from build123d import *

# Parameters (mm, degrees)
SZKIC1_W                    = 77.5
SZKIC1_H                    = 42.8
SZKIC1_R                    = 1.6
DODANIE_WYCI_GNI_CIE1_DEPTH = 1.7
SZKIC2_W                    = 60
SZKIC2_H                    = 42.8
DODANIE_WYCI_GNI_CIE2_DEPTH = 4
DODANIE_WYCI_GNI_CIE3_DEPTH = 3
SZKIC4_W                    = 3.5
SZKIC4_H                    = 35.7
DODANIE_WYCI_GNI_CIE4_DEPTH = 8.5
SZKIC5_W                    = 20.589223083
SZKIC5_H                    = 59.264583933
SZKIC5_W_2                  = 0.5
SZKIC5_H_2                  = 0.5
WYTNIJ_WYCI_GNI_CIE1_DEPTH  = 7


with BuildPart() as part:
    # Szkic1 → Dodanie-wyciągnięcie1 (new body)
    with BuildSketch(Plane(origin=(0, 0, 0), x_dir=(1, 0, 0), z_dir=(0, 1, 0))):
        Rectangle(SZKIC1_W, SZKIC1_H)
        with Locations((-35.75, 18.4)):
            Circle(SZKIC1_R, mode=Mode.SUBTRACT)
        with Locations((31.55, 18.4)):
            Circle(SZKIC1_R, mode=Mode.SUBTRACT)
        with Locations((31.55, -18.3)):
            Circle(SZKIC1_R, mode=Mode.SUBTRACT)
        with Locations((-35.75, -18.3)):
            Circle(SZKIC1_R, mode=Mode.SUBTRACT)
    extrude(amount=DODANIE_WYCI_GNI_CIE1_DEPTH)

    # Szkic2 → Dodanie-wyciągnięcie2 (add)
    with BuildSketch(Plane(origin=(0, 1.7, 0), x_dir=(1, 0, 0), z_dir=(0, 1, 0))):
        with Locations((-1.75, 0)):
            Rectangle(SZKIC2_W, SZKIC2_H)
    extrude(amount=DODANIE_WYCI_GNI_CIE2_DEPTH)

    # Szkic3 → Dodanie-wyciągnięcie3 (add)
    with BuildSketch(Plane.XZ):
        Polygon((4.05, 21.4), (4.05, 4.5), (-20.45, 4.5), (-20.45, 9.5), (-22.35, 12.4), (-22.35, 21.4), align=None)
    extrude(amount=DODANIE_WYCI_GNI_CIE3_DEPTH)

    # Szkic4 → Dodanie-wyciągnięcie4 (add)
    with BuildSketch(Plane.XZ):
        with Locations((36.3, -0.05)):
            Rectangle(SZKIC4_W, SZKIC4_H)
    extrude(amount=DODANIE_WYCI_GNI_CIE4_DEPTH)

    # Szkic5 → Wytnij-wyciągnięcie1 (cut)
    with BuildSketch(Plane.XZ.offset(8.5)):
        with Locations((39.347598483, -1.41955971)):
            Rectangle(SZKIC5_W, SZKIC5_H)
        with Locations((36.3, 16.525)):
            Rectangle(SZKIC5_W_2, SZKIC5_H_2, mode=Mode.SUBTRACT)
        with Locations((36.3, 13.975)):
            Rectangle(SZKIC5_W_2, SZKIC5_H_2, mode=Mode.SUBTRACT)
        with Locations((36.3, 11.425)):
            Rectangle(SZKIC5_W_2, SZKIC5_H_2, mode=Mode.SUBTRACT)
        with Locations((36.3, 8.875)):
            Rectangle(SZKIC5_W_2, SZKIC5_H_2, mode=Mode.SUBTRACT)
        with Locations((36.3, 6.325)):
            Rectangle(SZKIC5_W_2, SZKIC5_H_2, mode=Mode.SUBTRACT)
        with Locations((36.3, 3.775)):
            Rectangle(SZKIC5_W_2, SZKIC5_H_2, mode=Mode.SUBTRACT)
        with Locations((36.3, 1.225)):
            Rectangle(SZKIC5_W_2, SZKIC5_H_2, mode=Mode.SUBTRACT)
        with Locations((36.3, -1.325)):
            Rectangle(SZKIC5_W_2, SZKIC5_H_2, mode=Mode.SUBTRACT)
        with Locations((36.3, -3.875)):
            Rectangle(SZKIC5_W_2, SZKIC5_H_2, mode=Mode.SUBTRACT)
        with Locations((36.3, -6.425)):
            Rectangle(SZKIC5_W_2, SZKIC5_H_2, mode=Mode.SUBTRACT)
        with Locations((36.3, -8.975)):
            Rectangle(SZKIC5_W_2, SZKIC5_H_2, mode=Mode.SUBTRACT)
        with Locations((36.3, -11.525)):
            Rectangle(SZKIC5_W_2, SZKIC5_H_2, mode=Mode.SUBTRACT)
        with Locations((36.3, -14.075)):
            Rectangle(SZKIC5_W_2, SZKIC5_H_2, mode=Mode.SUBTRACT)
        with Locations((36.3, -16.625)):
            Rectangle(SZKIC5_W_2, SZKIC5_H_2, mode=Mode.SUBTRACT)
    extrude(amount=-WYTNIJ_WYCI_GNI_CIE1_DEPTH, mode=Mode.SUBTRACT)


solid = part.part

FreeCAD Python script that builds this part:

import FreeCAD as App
import Part
import Sketcher

doc = App.newDocument("Part")
params = doc.addObject("Spreadsheet::Sheet", "Params")
for row, (alias, value) in enumerate([
    ("sketch1_diameter", "3.2 mm"),
    ("sketch1_width", "77.5 mm"),
    ("sketch1_height", "42.8 mm"),
    ("pad1_length", "1.7 mm"),
    ("sketch2_width", "60 mm"),
    ("sketch2_height", "42.8 mm"),
    ("pad2_length", "4 mm"),
    ("sketch3_height", "9 mm"),
    ("sketch3_height2", "5 mm"),
    ("sketch3_width", "26.4 mm"),
    ("sketch3_width2", "24.5 mm"),
    ("sketch3_height3", "16.9 mm"),
    ("pad3_length", "3 mm"),
    ("sketch4_width", "3.5 mm"),
    ("sketch4_height", "35.7 mm"),
    ("pad4_length", "8.5 mm"),
    ("sketch5_width", "0.5 mm"),
    ("pocket1_length", "7 mm"),
], start=1):
    params.set(f"A{row}", alias)
    params.set(f"B{row}", "=" + value)
    params.setAlias(f"B{row}", alias)

body = doc.addObject("PartDesign::Body", "Body")

# Sketch on XZ plane
sketch1 = doc.addObject("Sketcher::SketchObject", "Sketch")
body.addObject(sketch1)
sketch1.AttachmentSupport = (doc.XZ_Plane, [""])
sketch1.MapMode = "FlatFace"
sketch1.addGeometry([
    Part.LineSegment(App.Vector(-38.8, -21.4, 0), App.Vector(-38.8, 21.4, 0)),  # 0
    Part.LineSegment(App.Vector(-38.8, 21.4, 0), App.Vector(38.8, 21.4, 0)),  # 1
    Part.LineSegment(App.Vector(38.8, 21.4, 0), App.Vector(38.8, -21.4, 0)),  # 2
    Part.LineSegment(App.Vector(38.8, -21.4, 0), App.Vector(-38.8, -21.4, 0)),  # 3
    Part.Circle(App.Vector(-35.8, 18.3, 0), App.Vector(0, 0, 1), 1.6),  # 4
    Part.Circle(App.Vector(31.6, 18.3, 0), App.Vector(0, 0, 1), 1.6),  # 5
    Part.Circle(App.Vector(-35.8, -18.4, 0), App.Vector(0, 0, 1), 1.6),  # 6
    Part.Circle(App.Vector(31.6, -18.4, 0), App.Vector(0, 0, 1), 1.6),  # 7
], False)
sketch1.addConstraint([
    Sketcher.Constraint("Coincident", 0, 2, 1, 1),
    Sketcher.Constraint("Coincident", 1, 2, 2, 1),
    Sketcher.Constraint("Coincident", 2, 2, 3, 1),
    Sketcher.Constraint("Coincident", 3, 2, 0, 1),
    Sketcher.Constraint("Vertical", 0),
    Sketcher.Constraint("Horizontal", 1),
    Sketcher.Constraint("Vertical", 2),
    Sketcher.Constraint("Horizontal", 3),
    Sketcher.Constraint("Equal", 4, 5),
    Sketcher.Constraint("Equal", 5, 6),
    Sketcher.Constraint("Equal", 6, 7),
    Sketcher.Constraint("Symmetric", 0, 2, 2, 2, -1, 1),
    Sketcher.Constraint("Horizontal", 4, 3, 5, 3),
    Sketcher.Constraint("Horizontal", 6, 3, 7, 3),
    Sketcher.Constraint("Vertical", 4, 3, 6, 3),
    Sketcher.Constraint("Vertical", 5, 3, 7, 3),
    Sketcher.Constraint("Diameter", 4, 3.2),
    Sketcher.Constraint("DistanceX", 1, 1, 1, 2, 77.5),
    Sketcher.Constraint("DistanceY", 0, 1, 0, 2, 42.8),
    Sketcher.Constraint("DistanceX", 0, 2, 4, 3, 3.0),
    Sketcher.Constraint("DistanceY", 2, 2, 7, 3, 3.0),
    Sketcher.Constraint("DistanceY", -1, 1, 4, 3, 18.3),
    Sketcher.Constraint("DistanceX", 4, 3, 5, 3, 67.3),
])
sketch1.setExpression("Constraints[16]", "Params.sketch1_diameter")
sketch1.setExpression("Constraints[17]", "Params.sketch1_width")
sketch1.setExpression("Constraints[18]", "Params.sketch1_height")
pad1 = doc.addObject("PartDesign::Pad", "Pad")
body.addObject(pad1)
pad1.Profile = sketch1
pad1.setExpression("Length", "Params.pad1_length")
pad1.Reversed = True

# Sketch on XZ plane
sketch2 = doc.addObject("Sketcher::SketchObject", "Sketch001")
body.addObject(sketch2)
sketch2.AttachmentSupport = (doc.XZ_Plane, [""])
sketch2.MapMode = "FlatFace"
sketch2.AttachmentOffset = App.Placement(App.Vector(0, 0, -1.7), App.Rotation())
sketch2.addGeometry([
    Part.LineSegment(App.Vector(-32, -21, 0), App.Vector(-32, 21, 0)),
    Part.LineSegment(App.Vector(-32, 21, 0), App.Vector(28, 21, 0)),
    Part.LineSegment(App.Vector(28, 21, 0), App.Vector(28, -21, 0)),
    Part.LineSegment(App.Vector(28, -21, 0), App.Vector(-32, -21, 0)),
], False)
sketch2.addConstraint([
    Sketcher.Constraint("Coincident", 0, 2, 1, 1),
    Sketcher.Constraint("Coincident", 1, 2, 2, 1),
    Sketcher.Constraint("Coincident", 2, 2, 3, 1),
    Sketcher.Constraint("Coincident", 3, 2, 0, 1),
    Sketcher.Constraint("Vertical", 0),
    Sketcher.Constraint("Horizontal", 1),
    Sketcher.Constraint("Vertical", 2),
    Sketcher.Constraint("Horizontal", 3),
    Sketcher.Constraint("DistanceX", 1, 1, 1, 2, 60.0),
    Sketcher.Constraint("DistanceY", 0, 1, 0, 2, 42.8),
    Sketcher.Constraint("DistanceY", -1, 1, 0, 2, 21.4),
    Sketcher.Constraint("DistanceX", 0, 2, -1, 1, 31.75),
])
sketch2.setExpression("Constraints[8]", "Params.sketch2_width")
sketch2.setExpression("Constraints[9]", "Params.sketch2_height")
pad2 = doc.addObject("PartDesign::Pad", "Pad001")
body.addObject(pad2)
pad2.Profile = sketch2
pad2.setExpression("Length", "Params.pad2_length")
pad2.Reversed = True

# Sketch on XZ plane
sketch3 = doc.addObject("Sketcher::SketchObject", "Sketch002")
body.addObject(sketch3)
sketch3.AttachmentSupport = (doc.XZ_Plane, [""])
sketch3.MapMode = "FlatFace"
sketch3.addGeometry([
    Part.LineSegment(App.Vector(4, 4.5, 0), App.Vector(4, 21.4, 0)),  # 0
    Part.LineSegment(App.Vector(4, 21.4, 0), App.Vector(-22.4, 21.4, 0)),  # 1
    Part.LineSegment(App.Vector(-22.4, 21.4, 0), App.Vector(-22.4, 12.4, 0)),  # 2
    Part.LineSegment(App.Vector(-22.4, 12.4, 0), App.Vector(-20.4, 9.5, 0)),  # 3
    Part.LineSegment(App.Vector(-20.4, 9.5, 0), App.Vector(-20.4, 4.5, 0)),  # 4
    Part.LineSegment(App.Vector(-20.4, 4.5, 0), App.Vector(4, 4.5, 0)),  # 5
], False)
sketch3.addConstraint([
    Sketcher.Constraint("Coincident", 0, 2, 1, 1),
    Sketcher.Constraint("Coincident", 1, 2, 2, 1),
    Sketcher.Constraint("Coincident", 2, 2, 3, 1),
    Sketcher.Constraint("Coincident", 3, 2, 4, 1),
    Sketcher.Constraint("Coincident", 4, 2, 5, 1),
    Sketcher.Constraint("Coincident", 5, 2, 0, 1),
    Sketcher.Constraint("Vertical", 0),
    Sketcher.Constraint("Horizontal", 1),
    Sketcher.Constraint("Vertical", 2),
    Sketcher.Constraint("Vertical", 4),
    Sketcher.Constraint("Horizontal", 5),
    Sketcher.Constraint("DistanceY", 2, 2, 2, 1, 9.0),
    Sketcher.Constraint("DistanceY", 4, 2, 4, 1, 5.0),
    Sketcher.Constraint("DistanceX", 1, 2, 1, 1, 26.4),
    Sketcher.Constraint("DistanceX", 5, 1, 5, 2, 24.5),
    Sketcher.Constraint("DistanceY", 0, 1, 0, 2, 16.9),
    Sketcher.Constraint("DistanceY", -1, 1, 0, 2, 21.4),
    Sketcher.Constraint("DistanceX", -1, 1, 0, 2, 4.05),
])
sketch3.setExpression("Constraints[11]", "Params.sketch3_height")
sketch3.setExpression("Constraints[12]", "Params.sketch3_height2")
sketch3.setExpression("Constraints[13]", "Params.sketch3_width")
sketch3.setExpression("Constraints[14]", "Params.sketch3_width2")
sketch3.setExpression("Constraints[15]", "Params.sketch3_height3")
pad3 = doc.addObject("PartDesign::Pad", "Pad002")
body.addObject(pad3)
pad3.Profile = sketch3
pad3.setExpression("Length", "Params.pad3_length")

# Sketch on XZ plane
sketch4 = doc.addObject("Sketcher::SketchObject", "Sketch003")
body.addObject(sketch4)
sketch4.AttachmentSupport = (doc.XZ_Plane, [""])
sketch4.MapMode = "FlatFace"
sketch4.addGeometry([
    Part.LineSegment(App.Vector(34.5, 17.8, 0), App.Vector(34.5, -17.9, 0)),
    Part.LineSegment(App.Vector(34.5, -17.9, 0), App.Vector(38, -17.9, 0)),
    Part.LineSegment(App.Vector(38, -17.9, 0), App.Vector(38, 17.8, 0)),
    Part.LineSegment(App.Vector(38, 17.8, 0), App.Vector(34.5, 17.8, 0)),
], False)
sketch4.addConstraint([
    Sketcher.Constraint("Coincident", 0, 2, 1, 1),
    Sketcher.Constraint("Coincident", 1, 2, 2, 1),
    Sketcher.Constraint("Coincident", 2, 2, 3, 1),
    Sketcher.Constraint("Coincident", 3, 2, 0, 1),
    Sketcher.Constraint("Vertical", 0),
    Sketcher.Constraint("Horizontal", 1),
    Sketcher.Constraint("Vertical", 2),
    Sketcher.Constraint("Horizontal", 3),
    Sketcher.Constraint("DistanceX", 1, 1, 1, 2, 3.5),
    Sketcher.Constraint("DistanceY", 0, 2, 0, 1, 35.7),
    Sketcher.Constraint("DistanceY", 0, 2, -1, 1, 17.9),
    Sketcher.Constraint("DistanceX", -1, 1, 0, 2, 34.55),
])
sketch4.setExpression("Constraints[8]", "Params.sketch4_width")
sketch4.setExpression("Constraints[9]", "Params.sketch4_height")
pad4 = doc.addObject("PartDesign::Pad", "Pad003")
body.addObject(pad4)
pad4.Profile = sketch4
pad4.setExpression("Length", "Params.pad4_length")

# Sketch on XZ plane
sketch5 = doc.addObject("Sketcher::SketchObject", "Sketch004")
body.addObject(sketch5)
sketch5.AttachmentSupport = (doc.XZ_Plane, [""])
sketch5.MapMode = "FlatFace"
sketch5.AttachmentOffset = App.Placement(App.Vector(0, 0, 8.5), App.Rotation())
sketch5.addGeometry([
    Part.LineSegment(App.Vector(29.1, 28.2, 0), App.Vector(29.1, -31.1, 0)),  # 0
    Part.LineSegment(App.Vector(29.1, -31.1, 0), App.Vector(49.6, -31.1, 0)),  # 1
    Part.LineSegment(App.Vector(49.6, -31.1, 0), App.Vector(49.6, 28.2, 0)),  # 2
    Part.LineSegment(App.Vector(49.6, 28.2, 0), App.Vector(29.1, 28.2, 0)),  # 3
    Part.LineSegment(App.Vector(36.5, -16.9, 0), App.Vector(36, -16.9, 0)),  # 4
    Part.LineSegment(App.Vector(36, -16.9, 0), App.Vector(36, -16.4, 0)),  # 5
    Part.LineSegment(App.Vector(36, -16.4, 0), App.Vector(36.5, -16.4, 0)),  # 6
    Part.LineSegment(App.Vector(36.5, -16.4, 0), App.Vector(36.5, -16.9, 0)),  # 7
    Part.LineSegment(App.Vector(36.5, -14.3, 0), App.Vector(36, -14.3, 0)),  # 8
    Part.LineSegment(App.Vector(36, -14.3, 0), App.Vector(36, -13.8, 0)),  # 9
    Part.LineSegment(App.Vector(36, -13.8, 0), App.Vector(36.5, -13.8, 0)),  # 10
    Part.LineSegment(App.Vector(36.5, -13.8, 0), App.Vector(36.5, -14.3, 0)),  # 11
    Part.LineSegment(App.Vector(36.5, -11.8, 0), App.Vector(36, -11.8, 0)),  # 12
    Part.LineSegment(App.Vector(36, -11.8, 0), App.Vector(36, -11.3, 0)),  # 13
    Part.LineSegment(App.Vector(36, -11.3, 0), App.Vector(36.5, -11.3, 0)),  # 14
    Part.LineSegment(App.Vector(36.5, -11.3, 0), App.Vector(36.5, -11.8, 0)),  # 15
    Part.LineSegment(App.Vector(36.5, -9.2, 0), App.Vector(36, -9.2, 0)),  # 16
    Part.LineSegment(App.Vector(36, -9.2, 0), App.Vector(36, -8.7, 0)),  # 17
    Part.LineSegment(App.Vector(36, -8.7, 0), App.Vector(36.5, -8.7, 0)),  # 18
    Part.LineSegment(App.Vector(36.5, -8.7, 0), App.Vector(36.5, -9.2, 0)),  # 19
    Part.LineSegment(App.Vector(36.5, -6.7, 0), App.Vector(36, -6.7, 0)),  # 20
    Part.LineSegment(App.Vector(36, -6.7, 0), App.Vector(36, -6.2, 0)),  # 21
    Part.LineSegment(App.Vector(36, -6.2, 0), App.Vector(36.5, -6.2, 0)),  # 22
    Part.LineSegment(App.Vector(36.5, -6.2, 0), App.Vector(36.5, -6.7, 0)),  # 23
    Part.LineSegment(App.Vector(36.5, -4.1, 0), App.Vector(36, -4.1, 0)),  # 24
    Part.LineSegment(App.Vector(36, -4.1, 0), App.Vector(36, -3.6, 0)),  # 25
    Part.LineSegment(App.Vector(36, -3.6, 0), App.Vector(36.5, -3.6, 0)),  # 26
    Part.LineSegment(App.Vector(36.5, -3.6, 0), App.Vector(36.5, -4.1, 0)),  # 27
    Part.LineSegment(App.Vector(36.5, -1.6, 0), App.Vector(36, -1.6, 0)),  # 28
    Part.LineSegment(App.Vector(36, -1.6, 0), App.Vector(36, -1.1, 0)),  # 29
    Part.LineSegment(App.Vector(36, -1.1, 0), App.Vector(36.5, -1.1, 0)),  # 30
    Part.LineSegment(App.Vector(36.5, -1.1, 0), App.Vector(36.5, -1.6, 0)),  # 31
    Part.LineSegment(App.Vector(36.5, 1, 0), App.Vector(36, 1, 0)),  # 32
    Part.LineSegment(App.Vector(36, 1, 0), App.Vector(36, 1.5, 0)),  # 33
    Part.LineSegment(App.Vector(36, 1.5, 0), App.Vector(36.5, 1.5, 0)),  # 34
    Part.LineSegment(App.Vector(36.5, 1.5, 0), App.Vector(36.5, 1, 0)),  # 35
    Part.LineSegment(App.Vector(36.5, 3.5, 0), App.Vector(36, 3.5, 0)),  # 36
    Part.LineSegment(App.Vector(36, 3.5, 0), App.Vector(36, 4, 0)),  # 37
    Part.LineSegment(App.Vector(36, 4, 0), App.Vector(36.5, 4, 0)),  # 38
    Part.LineSegment(App.Vector(36.5, 4, 0), App.Vector(36.5, 3.5, 0)),  # 39
    Part.LineSegment(App.Vector(36.5, 6.1, 0), App.Vector(36, 6.1, 0)),  # 40
    Part.LineSegment(App.Vector(36, 6.1, 0), App.Vector(36, 6.6, 0)),  # 41
    Part.LineSegment(App.Vector(36, 6.6, 0), App.Vector(36.5, 6.6, 0)),  # 42
    Part.LineSegment(App.Vector(36.5, 6.6, 0), App.Vector(36.5, 6.1, 0)),  # 43
    Part.LineSegment(App.Vector(36.5, 8.6, 0), App.Vector(36, 8.6, 0)),  # 44
    Part.LineSegment(App.Vector(36, 8.6, 0), App.Vector(36, 9.1, 0)),  # 45
    Part.LineSegment(App.Vector(36, 9.1, 0), App.Vector(36.5, 9.1, 0)),  # 46
    Part.LineSegment(App.Vector(36.5, 9.1, 0), App.Vector(36.5, 8.6, 0)),  # 47
    Part.LineSegment(App.Vector(36.5, 11.2, 0), App.Vector(36, 11.2, 0)),  # 48
    Part.LineSegment(App.Vector(36, 11.2, 0), App.Vector(36, 11.7, 0)),  # 49
    Part.LineSegment(App.Vector(36, 11.7, 0), App.Vector(36.5, 11.7, 0)),  # 50
    Part.LineSegment(App.Vector(36.5, 11.7, 0), App.Vector(36.5, 11.2, 0)),  # 51
    Part.LineSegment(App.Vector(36.5, 13.7, 0), App.Vector(36, 13.7, 0)),  # 52
    Part.LineSegment(App.Vector(36, 13.7, 0), App.Vector(36, 14.2, 0)),  # 53
    Part.LineSegment(App.Vector(36, 14.2, 0), App.Vector(36.5, 14.2, 0)),  # 54
    Part.LineSegment(App.Vector(36.5, 14.2, 0), App.Vector(36.5, 13.7, 0)),  # 55
    Part.LineSegment(App.Vector(36.5, 16.3, 0), App.Vector(36, 16.3, 0)),  # 56
    Part.LineSegment(App.Vector(36, 16.3, 0), App.Vector(36, 16.8, 0)),  # 57
    Part.LineSegment(App.Vector(36, 16.8, 0), App.Vector(36.5, 16.8, 0)),  # 58
    Part.LineSegment(App.Vector(36.5, 16.8, 0), App.Vector(36.5, 16.3, 0)),  # 59
], False)
sketch5.addConstraint([
    Sketcher.Constraint("Coincident", 0, 2, 1, 1),
    Sketcher.Constraint("Coincident", 1, 2, 2, 1),
    Sketcher.Constraint("Coincident", 2, 2, 3, 1),
    Sketcher.Constraint("Coincident", 3, 2, 0, 1),
    Sketcher.Constraint("Coincident", 4, 2, 5, 1),
    Sketcher.Constraint("Coincident", 5, 2, 6, 1),
    Sketcher.Constraint("Coincident", 6, 2, 7, 1),
    Sketcher.Constraint("Coincident", 7, 2, 4, 1),
    Sketcher.Constraint("Coincident", 8, 2, 9, 1),
    Sketcher.Constraint("Coincident", 9, 2, 10, 1),
    Sketcher.Constraint("Coincident", 10, 2, 11, 1),
    Sketcher.Constraint("Coincident", 11, 2, 8, 1),
    Sketcher.Constraint("Coincident", 12, 2, 13, 1),
    Sketcher.Constraint("Coincident", 13, 2, 14, 1),
    Sketcher.Constraint("Coincident", 14, 2, 15, 1),
    Sketcher.Constraint("Coincident", 15, 2, 12, 1),
    Sketcher.Constraint("Coincident", 16, 2, 17, 1),
    Sketcher.Constraint("Coincident", 17, 2, 18, 1),
    Sketcher.Constraint("Coincident", 18, 2, 19, 1),
    Sketcher.Constraint("Coincident", 19, 2, 16, 1),
    Sketcher.Constraint("Coincident", 20, 2, 21, 1),
    Sketcher.Constraint("Coincident", 21, 2, 22, 1),
    Sketcher.Constraint("Coincident", 22, 2, 23, 1),
    Sketcher.Constraint("Coincident", 23, 2, 20, 1),
    Sketcher.Constraint("Coincident", 24, 2, 25, 1),
    Sketcher.Constraint("Coincident", 25, 2, 26, 1),
    Sketcher.Constraint("Coincident", 26, 2, 27, 1),
    Sketcher.Constraint("Coincident", 27, 2, 24, 1),
    Sketcher.Constraint("Coincident", 28, 2, 29, 1),
    Sketcher.Constraint("Coincident", 29, 2, 30, 1),
    Sketcher.Constraint("Coincident", 30, 2, 31, 1),
    Sketcher.Constraint("Coincident", 31, 2, 28, 1),
    Sketcher.Constraint("Coincident", 32, 2, 33, 1),
    Sketcher.Constraint("Coincident", 33, 2, 34, 1),
    Sketcher.Constraint("Coincident", 34, 2, 35, 1),
    Sketcher.Constraint("Coincident", 35, 2, 32, 1),
    Sketcher.Constraint("Coincident", 36, 2, 37, 1),
    Sketcher.Constraint("Coincident", 37, 2, 38, 1),
    Sketcher.Constraint("Coincident", 38, 2, 39, 1),
    Sketcher.Constraint("Coincident", 39, 2, 36, 1),
    Sketcher.Constraint("Coincident", 40, 2, 41, 1),
    Sketcher.Constraint("Coincident", 41, 2, 42, 1),
    Sketcher.Constraint("Coincident", 42, 2, 43, 1),
    Sketcher.Constraint("Coincident", 43, 2, 40, 1),
    Sketcher.Constraint("Coincident", 44, 2, 45, 1),
    Sketcher.Constraint("Coincident", 45, 2, 46, 1),
    Sketcher.Constraint("Coincident", 46, 2, 47, 1),
    Sketcher.Constraint("Coincident", 47, 2, 44, 1),
    Sketcher.Constraint("Coincident", 48, 2, 49, 1),
    Sketcher.Constraint("Coincident", 49, 2, 50, 1),
    Sketcher.Constraint("Coincident", 50, 2, 51, 1),
    Sketcher.Constraint("Coincident", 51, 2, 48, 1),
    Sketcher.Constraint("Coincident", 52, 2, 53, 1),
    Sketcher.Constraint("Coincident", 53, 2, 54, 1),
    Sketcher.Constraint("Coincident", 54, 2, 55, 1),
    Sketcher.Constraint("Coincident", 55, 2, 52, 1),
    Sketcher.Constraint("Coincident", 56, 2, 57, 1),
    Sketcher.Constraint("Coincident", 57, 2, 58, 1),
    Sketcher.Constraint("Coincident", 58, 2, 59, 1),
    Sketcher.Constraint("Coincident", 59, 2, 56, 1),
    Sketcher.Constraint("Vertical", 0),
    Sketcher.Constraint("Horizontal", 1),
    Sketcher.Constraint("Vertical", 2),
    Sketcher.Constraint("Horizontal", 3),
    Sketcher.Constraint("Horizontal", 4),
    Sketcher.Constraint("Vertical", 5),
    Sketcher.Constraint("Horizontal", 6),
    Sketcher.Constraint("Vertical", 7),
    Sketcher.Constraint("Horizontal", 8),
    Sketcher.Constraint("Vertical", 9),
    Sketcher.Constraint("Horizontal", 10),
    Sketcher.Constraint("Vertical", 11),
    Sketcher.Constraint("Horizontal", 12),
    Sketcher.Constraint("Vertical", 13),
    Sketcher.Constraint("Horizontal", 14),
    Sketcher.Constraint("Vertical", 15),
    Sketcher.Constraint("Horizontal", 16),
    Sketcher.Constraint("Vertical", 17),
    Sketcher.Constraint("Horizontal", 18),
    Sketcher.Constraint("Vertical", 19),
    Sketcher.Constraint("Horizontal", 20),
    Sketcher.Constraint("Vertical", 21),
    Sketcher.Constraint("Horizontal", 22),
    Sketcher.Constraint("Vertical", 23),
    Sketcher.Constraint("Horizontal", 24),
    Sketcher.Constraint("Vertical", 25),
    Sketcher.Constraint("Horizontal", 26),
    Sketcher.Constraint("Vertical", 27),
    Sketcher.Constraint("Horizontal", 28),
    Sketcher.Constraint("Vertical", 29),
    Sketcher.Constraint("Horizontal", 30),
    Sketcher.Constraint("Vertical", 31),
    Sketcher.Constraint("Horizontal", 32),
    Sketcher.Constraint("Vertical", 33),
    Sketcher.Constraint("Horizontal", 34),
    Sketcher.Constraint("Vertical", 35),
    Sketcher.Constraint("Horizontal", 36),
    Sketcher.Constraint("Vertical", 37),
    Sketcher.Constraint("Horizontal", 38),
    Sketcher.Constraint("Vertical", 39),
    Sketcher.Constraint("Horizontal", 40),
    Sketcher.Constraint("Vertical", 41),
    Sketcher.Constraint("Horizontal", 42),
    Sketcher.Constraint("Vertical", 43),
    Sketcher.Constraint("Horizontal", 44),
    Sketcher.Constraint("Vertical", 45),
    Sketcher.Constraint("Horizontal", 46),
    Sketcher.Constraint("Vertical", 47),
    Sketcher.Constraint("Horizontal", 48),
    Sketcher.Constraint("Vertical", 49),
    Sketcher.Constraint("Horizontal", 50),
    Sketcher.Constraint("Vertical", 51),
    Sketcher.Constraint("Horizontal", 52),
    Sketcher.Constraint("Vertical", 53),
    Sketcher.Constraint("Horizontal", 54),
    Sketcher.Constraint("Vertical", 55),
    Sketcher.Constraint("Horizontal", 56),
    Sketcher.Constraint("Vertical", 57),
    Sketcher.Constraint("Horizontal", 58),
    Sketcher.Constraint("Vertical", 59),
    Sketcher.Constraint("Vertical", 5, 2, 8, 2),
    Sketcher.Constraint("Vertical", 7, 2, 10, 2),
    Sketcher.Constraint("Vertical", 9, 2, 12, 2),
    Sketcher.Constraint("Vertical", 11, 2, 14, 2),
    Sketcher.Constraint("Vertical", 13, 2, 16, 2),
    Sketcher.Constraint("Vertical", 15, 2, 18, 2),
    Sketcher.Constraint("Vertical", 17, 2, 20, 2),
    Sketcher.Constraint("Vertical", 19, 2, 22, 2),
    Sketcher.Constraint("Vertical", 21, 2, 24, 2),
    Sketcher.Constraint("Vertical", 23, 2, 26, 2),
    Sketcher.Constraint("Vertical", 25, 2, 28, 2),
    Sketcher.Constraint("Vertical", 27, 2, 30, 2),
    Sketcher.Constraint("Vertical", 29, 2, 32, 2),
    Sketcher.Constraint("Vertical", 31, 2, 34, 2),
    Sketcher.Constraint("Vertical", 33, 2, 36, 2),
    Sketcher.Constraint("Vertical", 35, 2, 38, 2),
    Sketcher.Constraint("Vertical", 37, 2, 40, 2),
    Sketcher.Constraint("Vertical", 39, 2, 42, 2),
    Sketcher.Constraint("Vertical", 41, 2, 44, 2),
    Sketcher.Constraint("Vertical", 43, 2, 46, 2),
    Sketcher.Constraint("Vertical", 45, 2, 48, 2),
    Sketcher.Constraint("Vertical", 47, 2, 50, 2),
    Sketcher.Constraint("Vertical", 49, 2, 52, 2),
    Sketcher.Constraint("Vertical", 51, 2, 54, 2),
    Sketcher.Constraint("Vertical", 53, 2, 56, 2),
    Sketcher.Constraint("Vertical", 55, 2, 58, 2),
    Sketcher.Constraint("Equal", 58, 5),
    Sketcher.Constraint("Equal", 7, 9),
    Sketcher.Constraint("Equal", 11, 13),
    Sketcher.Constraint("Equal", 15, 17),
    Sketcher.Constraint("Equal", 19, 21),
    Sketcher.Constraint("Equal", 23, 25),
    Sketcher.Constraint("Equal", 27, 29),
    Sketcher.Constraint("Equal", 31, 33),
    Sketcher.Constraint("Equal", 35, 37),
    Sketcher.Constraint("Equal", 39, 41),
    Sketcher.Constraint("Equal", 43, 45),
    Sketcher.Constraint("Equal", 47, 49),
    Sketcher.Constraint("Equal", 51, 53),
    Sketcher.Constraint("Equal", 55, 57),
    Sketcher.Constraint("DistanceX", 4, 2, 4, 1, 0.5),
    Sketcher.Constraint("DistanceY", 5, 2, 12, 2, 4.6),
    Sketcher.Constraint("DistanceY", 9, 2, 16, 2, 4.6),
    Sketcher.Constraint("DistanceY", 13, 2, 20, 2, 4.6),
    Sketcher.Constraint("DistanceY", 17, 2, 24, 2, 4.6),
    Sketcher.Constraint("DistanceY", 21, 2, 28, 2, 4.6),
    Sketcher.Constraint("DistanceY", 25, 2, 32, 2, 4.6),
    Sketcher.Constraint("DistanceY", 29, 2, 36, 2, 4.6),
    Sketcher.Constraint("DistanceY", 33, 2, 40, 2, 4.6),
    Sketcher.Constraint("DistanceY", 37, 2, 44, 2, 4.6),
    Sketcher.Constraint("DistanceY", 41, 2, 48, 2, 4.6),
    Sketcher.Constraint("DistanceY", 45, 2, 52, 2, 4.6),
    Sketcher.Constraint("DistanceY", 49, 2, 56, 2, 4.6),
    Sketcher.Constraint("DistanceX", -1, 1, 4, 2, 36.05),
    Sketcher.Constraint("DistanceY", 5, 2, 8, 2, 2.05),
    Sketcher.Constraint("DistanceY", 4, 2, -1, 1, 16.875),
    Sketcher.Constraint("DistanceX", 1, 1, 1, 2, 20.589223),
    Sketcher.Constraint("DistanceY", 0, 2, 0, 1, 59.264584),
    Sketcher.Constraint("DistanceY", 0, 2, -1, 1, 31.051852),
    Sketcher.Constraint("DistanceX", -1, 1, 1, 2, 49.64221),
])
sketch5.setExpression("Constraints[160]", "Params.sketch5_width")
pocket1 = doc.addObject("PartDesign::Pocket", "Pocket")
body.addObject(pocket1)
pocket1.Profile = sketch5
pocket1.setExpression("Length", "Params.pocket1_length")

doc.recompute()
